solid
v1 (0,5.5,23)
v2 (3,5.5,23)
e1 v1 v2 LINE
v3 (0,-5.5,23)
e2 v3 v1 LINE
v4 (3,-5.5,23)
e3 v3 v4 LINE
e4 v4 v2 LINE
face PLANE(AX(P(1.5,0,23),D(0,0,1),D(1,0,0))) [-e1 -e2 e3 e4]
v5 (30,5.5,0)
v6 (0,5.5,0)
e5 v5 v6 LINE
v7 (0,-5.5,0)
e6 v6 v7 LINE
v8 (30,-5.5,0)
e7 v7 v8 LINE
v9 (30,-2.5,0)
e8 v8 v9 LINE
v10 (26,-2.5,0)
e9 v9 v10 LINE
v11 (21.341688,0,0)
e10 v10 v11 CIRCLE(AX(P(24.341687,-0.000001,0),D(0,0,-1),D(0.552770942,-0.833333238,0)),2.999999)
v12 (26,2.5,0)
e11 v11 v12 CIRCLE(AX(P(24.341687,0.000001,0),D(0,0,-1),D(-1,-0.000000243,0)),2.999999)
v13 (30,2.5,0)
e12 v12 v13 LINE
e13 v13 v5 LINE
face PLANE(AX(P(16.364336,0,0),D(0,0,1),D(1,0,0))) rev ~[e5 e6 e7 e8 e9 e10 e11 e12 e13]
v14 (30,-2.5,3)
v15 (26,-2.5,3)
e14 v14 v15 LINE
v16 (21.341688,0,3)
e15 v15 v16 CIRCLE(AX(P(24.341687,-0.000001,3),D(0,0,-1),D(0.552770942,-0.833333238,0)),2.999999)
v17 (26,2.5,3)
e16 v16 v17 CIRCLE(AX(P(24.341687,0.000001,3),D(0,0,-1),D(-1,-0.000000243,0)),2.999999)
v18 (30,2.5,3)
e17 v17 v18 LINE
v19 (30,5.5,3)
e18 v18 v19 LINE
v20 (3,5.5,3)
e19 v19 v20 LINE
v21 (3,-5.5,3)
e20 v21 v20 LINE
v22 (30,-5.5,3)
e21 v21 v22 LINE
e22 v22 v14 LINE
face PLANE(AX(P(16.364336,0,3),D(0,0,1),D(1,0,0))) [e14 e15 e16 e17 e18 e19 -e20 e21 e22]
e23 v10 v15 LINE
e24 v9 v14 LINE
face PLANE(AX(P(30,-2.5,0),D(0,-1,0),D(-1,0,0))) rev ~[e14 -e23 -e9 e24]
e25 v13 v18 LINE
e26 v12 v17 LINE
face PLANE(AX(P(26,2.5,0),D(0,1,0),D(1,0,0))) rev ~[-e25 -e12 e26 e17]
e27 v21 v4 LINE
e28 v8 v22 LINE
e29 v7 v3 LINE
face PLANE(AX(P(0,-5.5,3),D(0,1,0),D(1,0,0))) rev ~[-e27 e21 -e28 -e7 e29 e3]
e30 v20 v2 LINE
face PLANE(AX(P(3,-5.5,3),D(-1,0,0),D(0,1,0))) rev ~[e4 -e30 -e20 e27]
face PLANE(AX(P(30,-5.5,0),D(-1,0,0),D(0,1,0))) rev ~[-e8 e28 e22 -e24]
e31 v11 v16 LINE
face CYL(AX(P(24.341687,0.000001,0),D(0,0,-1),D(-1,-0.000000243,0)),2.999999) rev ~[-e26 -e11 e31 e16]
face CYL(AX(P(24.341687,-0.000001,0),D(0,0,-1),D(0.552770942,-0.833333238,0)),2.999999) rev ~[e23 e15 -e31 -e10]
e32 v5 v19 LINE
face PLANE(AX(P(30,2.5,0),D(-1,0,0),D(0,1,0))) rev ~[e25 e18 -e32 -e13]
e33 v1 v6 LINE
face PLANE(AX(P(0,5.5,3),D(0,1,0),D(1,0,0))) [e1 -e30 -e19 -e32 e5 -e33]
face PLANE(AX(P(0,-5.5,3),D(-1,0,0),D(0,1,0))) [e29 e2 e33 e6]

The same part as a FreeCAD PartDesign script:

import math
import FreeCAD as App
import Part
import Sketcher

doc = App.newDocument("Part")
body = doc.addObject("PartDesign::Body", "Body")

# Sketch on XY plane
sketch1 = body.newObject("Sketcher::SketchObject", "Sketch")
sketch1.AttachmentSupport = (doc.getObject("XY_Plane"), [""])
sketch1.MapMode = "FlatFace"
sketch1.addGeometry(Part.LineSegment(App.Vector(0, 5.5, 0), App.Vector(0, -5.5, 0)), False)
sketch1.addGeometry(Part.LineSegment(App.Vector(0, -5.5, 0), App.Vector(30, -5.5, 0)), False)
sketch1.addGeometry(Part.LineSegment(App.Vector(30, -5.5, 0), App.Vector(30, -2.5, 0)), False)
sketch1.addGeometry(Part.LineSegment(App.Vector(30, -2.5, 0), App.Vector(26, -2.5, 0)), False)
sketch1.addGeometry(Part.ArcOfCircle(Part.Circle(App.Vector(24.3, 0, 0), App.Vector(0, 0, 1), 3), math.radians(180), math.radians(304)), False)
sketch1.addGeometry(Part.ArcOfCircle(Part.Circle(App.Vector(24.3, 0, 0), App.Vector(0, 0, 1), 3), math.radians(56), math.radians(180)), False)
sketch1.addGeometry(Part.LineSegment(App.Vector(26, 2.5, 0), App.Vector(30, 2.5, 0)), False)
sketch1.addGeometry(Part.LineSegment(App.Vector(30, 2.5, 0), App.Vector(30, 5.5, 0)), False)
sketch1.addGeometry(Part.LineSegment(App.Vector(30, 5.5, 0), App.Vector(0, 5.5, 0)), False)
sketch1.addConstraint(Sketcher.Constraint("Coincident", 0, 2, 1, 1))
sketch1.addConstraint(Sketcher.Constraint("Coincident", 1, 2, 2, 1))
sketch1.addConstraint(Sketcher.Constraint("Coincident", 2, 2, 3, 1))
sketch1.addConstraint(Sketcher.Constraint("Coincident", 3, 2, 4, 2))
sketch1.addConstraint(Sketcher.Constraint("Tangent", 4, 1, 5, 2))
sketch1.addConstraint(Sketcher.Constraint("Coincident", 5, 1, 6, 1))
sketch1.addConstraint(Sketcher.Constraint("Coincident", 6, 2, 7, 1))
sketch1.addConstraint(Sketcher.Constraint("Coincident", 7, 2, 8, 1))
sketch1.addConstraint(Sketcher.Constraint("Coincident", 8, 2, 0, 1))
sketch1.addConstraint(Sketcher.Constraint("Vertical", 0))
sketch1.addConstraint(Sketcher.Constraint("Horizontal", 1))
sketch1.addConstraint(Sketcher.Constraint("Vertical", 2))
sketch1.addConstraint(Sketcher.Constraint("Horizontal", 3))
sketch1.addConstraint(Sketcher.Constraint("Horizontal", 6))
sketch1.addConstraint(Sketcher.Constraint("Vertical", 7))
sketch1.addConstraint(Sketcher.Constraint("Horizontal", 8))
sketch1.addConstraint(Sketcher.Constraint("Equal", 4, 5))
sketch1.addConstraint(Sketcher.Constraint("Symmetric", 0, 2, 8, 2, -1, 1))
sketch1.addConstraint(Sketcher.Constraint("Symmetric", 3, 2, 5, 1, -1))
sketch1.addConstraint(Sketcher.Constraint("PointOnObject", 4, 1, -1))
sketch1.addConstraint(Sketcher.Constraint("Vertical", 2, 2, 6, 2))
sketch1.addConstraint(Sketcher.Constraint("Radius", 4, 2.999999))
sketch1.addConstraint(Sketcher.Constraint("DistanceX", 1, 1, 1, 2, 30.0))
sketch1.addConstraint(Sketcher.Constraint("DistanceX", 3, 2, 3, 1, 4.0))
sketch1.addConstraint(Sketcher.Constraint("DistanceY", 0, 2, 0, 1, 11.0))
sketch1.addConstraint(Sketcher.Constraint("DistanceY", 2, 1, 2, 2, 3.0))
pad1 = body.newObject("PartDesign::Pad", "Pad")
pad1.Profile = sketch1
pad1.Length = 3

# Sketch on XY plane
sketch2 = body.newObject("Sketcher::SketchObject", "Sketch001")
sketch2.AttachmentSupport = (doc.getObject("XY_Plane"), [""])
sketch2.MapMode = "FlatFace"
sketch2.AttachmentOffset = App.Placement(App.Vector(0, 0, 3), App.Rotation())
sketch2.addGeometry(Part.LineSegment(App.Vector(0, 5.5, 0), App.Vector(0, -5.5, 0)), False)
sketch2.addGeometry(Part.LineSegment(App.Vector(0, -5.5, 0), App.Vector(3, -5.5, 0)), False)
sketch2.addGeometry(Part.LineSegment(App.Vector(3, -5.5, 0), App.Vector(3, 5.5, 0)), False)
sketch2.addGeometry(Part.LineSegment(App.Vector(3, 5.5, 0), App.Vector(0, 5.5, 0)), False)
sketch2.addConstraint(Sketcher.Constraint("Coincident", 0, 2, 1, 1))
sketch2.addConstraint(Sketcher.Constraint("Coincident", 1, 2, 2, 1))
sketch2.addConstraint(Sketcher.Constraint("Coincident", 2, 2, 3, 1))
sketch2.addConstraint(Sketcher.Constraint("Coincident", 3, 2, 0, 1))
sketch2.addConstraint(Sketcher.Constraint("Vertical", 0))
sketch2.addConstraint(Sketcher.Constraint("Horizontal", 1))
sketch2.addConstraint(Sketcher.Constraint("Vertical", 2))
sketch2.addConstraint(Sketcher.Constraint("Horizontal", 3))
sketch2.addConstraint(Sketcher.Constraint("Symmetric", 0, 2, 3, 2, -1, 1))
sketch2.addConstraint(Sketcher.Constraint("DistanceX", 1, 1, 1, 2, 3.0))
sketch2.addConstraint(Sketcher.Constraint("DistanceY", 0, 2, 0, 1, 11.0))
pad2 = body.newObject("PartDesign::Pad", "Pad001")
pad2.Profile = sketch2
pad2.Length = 20

doc.recompute()
